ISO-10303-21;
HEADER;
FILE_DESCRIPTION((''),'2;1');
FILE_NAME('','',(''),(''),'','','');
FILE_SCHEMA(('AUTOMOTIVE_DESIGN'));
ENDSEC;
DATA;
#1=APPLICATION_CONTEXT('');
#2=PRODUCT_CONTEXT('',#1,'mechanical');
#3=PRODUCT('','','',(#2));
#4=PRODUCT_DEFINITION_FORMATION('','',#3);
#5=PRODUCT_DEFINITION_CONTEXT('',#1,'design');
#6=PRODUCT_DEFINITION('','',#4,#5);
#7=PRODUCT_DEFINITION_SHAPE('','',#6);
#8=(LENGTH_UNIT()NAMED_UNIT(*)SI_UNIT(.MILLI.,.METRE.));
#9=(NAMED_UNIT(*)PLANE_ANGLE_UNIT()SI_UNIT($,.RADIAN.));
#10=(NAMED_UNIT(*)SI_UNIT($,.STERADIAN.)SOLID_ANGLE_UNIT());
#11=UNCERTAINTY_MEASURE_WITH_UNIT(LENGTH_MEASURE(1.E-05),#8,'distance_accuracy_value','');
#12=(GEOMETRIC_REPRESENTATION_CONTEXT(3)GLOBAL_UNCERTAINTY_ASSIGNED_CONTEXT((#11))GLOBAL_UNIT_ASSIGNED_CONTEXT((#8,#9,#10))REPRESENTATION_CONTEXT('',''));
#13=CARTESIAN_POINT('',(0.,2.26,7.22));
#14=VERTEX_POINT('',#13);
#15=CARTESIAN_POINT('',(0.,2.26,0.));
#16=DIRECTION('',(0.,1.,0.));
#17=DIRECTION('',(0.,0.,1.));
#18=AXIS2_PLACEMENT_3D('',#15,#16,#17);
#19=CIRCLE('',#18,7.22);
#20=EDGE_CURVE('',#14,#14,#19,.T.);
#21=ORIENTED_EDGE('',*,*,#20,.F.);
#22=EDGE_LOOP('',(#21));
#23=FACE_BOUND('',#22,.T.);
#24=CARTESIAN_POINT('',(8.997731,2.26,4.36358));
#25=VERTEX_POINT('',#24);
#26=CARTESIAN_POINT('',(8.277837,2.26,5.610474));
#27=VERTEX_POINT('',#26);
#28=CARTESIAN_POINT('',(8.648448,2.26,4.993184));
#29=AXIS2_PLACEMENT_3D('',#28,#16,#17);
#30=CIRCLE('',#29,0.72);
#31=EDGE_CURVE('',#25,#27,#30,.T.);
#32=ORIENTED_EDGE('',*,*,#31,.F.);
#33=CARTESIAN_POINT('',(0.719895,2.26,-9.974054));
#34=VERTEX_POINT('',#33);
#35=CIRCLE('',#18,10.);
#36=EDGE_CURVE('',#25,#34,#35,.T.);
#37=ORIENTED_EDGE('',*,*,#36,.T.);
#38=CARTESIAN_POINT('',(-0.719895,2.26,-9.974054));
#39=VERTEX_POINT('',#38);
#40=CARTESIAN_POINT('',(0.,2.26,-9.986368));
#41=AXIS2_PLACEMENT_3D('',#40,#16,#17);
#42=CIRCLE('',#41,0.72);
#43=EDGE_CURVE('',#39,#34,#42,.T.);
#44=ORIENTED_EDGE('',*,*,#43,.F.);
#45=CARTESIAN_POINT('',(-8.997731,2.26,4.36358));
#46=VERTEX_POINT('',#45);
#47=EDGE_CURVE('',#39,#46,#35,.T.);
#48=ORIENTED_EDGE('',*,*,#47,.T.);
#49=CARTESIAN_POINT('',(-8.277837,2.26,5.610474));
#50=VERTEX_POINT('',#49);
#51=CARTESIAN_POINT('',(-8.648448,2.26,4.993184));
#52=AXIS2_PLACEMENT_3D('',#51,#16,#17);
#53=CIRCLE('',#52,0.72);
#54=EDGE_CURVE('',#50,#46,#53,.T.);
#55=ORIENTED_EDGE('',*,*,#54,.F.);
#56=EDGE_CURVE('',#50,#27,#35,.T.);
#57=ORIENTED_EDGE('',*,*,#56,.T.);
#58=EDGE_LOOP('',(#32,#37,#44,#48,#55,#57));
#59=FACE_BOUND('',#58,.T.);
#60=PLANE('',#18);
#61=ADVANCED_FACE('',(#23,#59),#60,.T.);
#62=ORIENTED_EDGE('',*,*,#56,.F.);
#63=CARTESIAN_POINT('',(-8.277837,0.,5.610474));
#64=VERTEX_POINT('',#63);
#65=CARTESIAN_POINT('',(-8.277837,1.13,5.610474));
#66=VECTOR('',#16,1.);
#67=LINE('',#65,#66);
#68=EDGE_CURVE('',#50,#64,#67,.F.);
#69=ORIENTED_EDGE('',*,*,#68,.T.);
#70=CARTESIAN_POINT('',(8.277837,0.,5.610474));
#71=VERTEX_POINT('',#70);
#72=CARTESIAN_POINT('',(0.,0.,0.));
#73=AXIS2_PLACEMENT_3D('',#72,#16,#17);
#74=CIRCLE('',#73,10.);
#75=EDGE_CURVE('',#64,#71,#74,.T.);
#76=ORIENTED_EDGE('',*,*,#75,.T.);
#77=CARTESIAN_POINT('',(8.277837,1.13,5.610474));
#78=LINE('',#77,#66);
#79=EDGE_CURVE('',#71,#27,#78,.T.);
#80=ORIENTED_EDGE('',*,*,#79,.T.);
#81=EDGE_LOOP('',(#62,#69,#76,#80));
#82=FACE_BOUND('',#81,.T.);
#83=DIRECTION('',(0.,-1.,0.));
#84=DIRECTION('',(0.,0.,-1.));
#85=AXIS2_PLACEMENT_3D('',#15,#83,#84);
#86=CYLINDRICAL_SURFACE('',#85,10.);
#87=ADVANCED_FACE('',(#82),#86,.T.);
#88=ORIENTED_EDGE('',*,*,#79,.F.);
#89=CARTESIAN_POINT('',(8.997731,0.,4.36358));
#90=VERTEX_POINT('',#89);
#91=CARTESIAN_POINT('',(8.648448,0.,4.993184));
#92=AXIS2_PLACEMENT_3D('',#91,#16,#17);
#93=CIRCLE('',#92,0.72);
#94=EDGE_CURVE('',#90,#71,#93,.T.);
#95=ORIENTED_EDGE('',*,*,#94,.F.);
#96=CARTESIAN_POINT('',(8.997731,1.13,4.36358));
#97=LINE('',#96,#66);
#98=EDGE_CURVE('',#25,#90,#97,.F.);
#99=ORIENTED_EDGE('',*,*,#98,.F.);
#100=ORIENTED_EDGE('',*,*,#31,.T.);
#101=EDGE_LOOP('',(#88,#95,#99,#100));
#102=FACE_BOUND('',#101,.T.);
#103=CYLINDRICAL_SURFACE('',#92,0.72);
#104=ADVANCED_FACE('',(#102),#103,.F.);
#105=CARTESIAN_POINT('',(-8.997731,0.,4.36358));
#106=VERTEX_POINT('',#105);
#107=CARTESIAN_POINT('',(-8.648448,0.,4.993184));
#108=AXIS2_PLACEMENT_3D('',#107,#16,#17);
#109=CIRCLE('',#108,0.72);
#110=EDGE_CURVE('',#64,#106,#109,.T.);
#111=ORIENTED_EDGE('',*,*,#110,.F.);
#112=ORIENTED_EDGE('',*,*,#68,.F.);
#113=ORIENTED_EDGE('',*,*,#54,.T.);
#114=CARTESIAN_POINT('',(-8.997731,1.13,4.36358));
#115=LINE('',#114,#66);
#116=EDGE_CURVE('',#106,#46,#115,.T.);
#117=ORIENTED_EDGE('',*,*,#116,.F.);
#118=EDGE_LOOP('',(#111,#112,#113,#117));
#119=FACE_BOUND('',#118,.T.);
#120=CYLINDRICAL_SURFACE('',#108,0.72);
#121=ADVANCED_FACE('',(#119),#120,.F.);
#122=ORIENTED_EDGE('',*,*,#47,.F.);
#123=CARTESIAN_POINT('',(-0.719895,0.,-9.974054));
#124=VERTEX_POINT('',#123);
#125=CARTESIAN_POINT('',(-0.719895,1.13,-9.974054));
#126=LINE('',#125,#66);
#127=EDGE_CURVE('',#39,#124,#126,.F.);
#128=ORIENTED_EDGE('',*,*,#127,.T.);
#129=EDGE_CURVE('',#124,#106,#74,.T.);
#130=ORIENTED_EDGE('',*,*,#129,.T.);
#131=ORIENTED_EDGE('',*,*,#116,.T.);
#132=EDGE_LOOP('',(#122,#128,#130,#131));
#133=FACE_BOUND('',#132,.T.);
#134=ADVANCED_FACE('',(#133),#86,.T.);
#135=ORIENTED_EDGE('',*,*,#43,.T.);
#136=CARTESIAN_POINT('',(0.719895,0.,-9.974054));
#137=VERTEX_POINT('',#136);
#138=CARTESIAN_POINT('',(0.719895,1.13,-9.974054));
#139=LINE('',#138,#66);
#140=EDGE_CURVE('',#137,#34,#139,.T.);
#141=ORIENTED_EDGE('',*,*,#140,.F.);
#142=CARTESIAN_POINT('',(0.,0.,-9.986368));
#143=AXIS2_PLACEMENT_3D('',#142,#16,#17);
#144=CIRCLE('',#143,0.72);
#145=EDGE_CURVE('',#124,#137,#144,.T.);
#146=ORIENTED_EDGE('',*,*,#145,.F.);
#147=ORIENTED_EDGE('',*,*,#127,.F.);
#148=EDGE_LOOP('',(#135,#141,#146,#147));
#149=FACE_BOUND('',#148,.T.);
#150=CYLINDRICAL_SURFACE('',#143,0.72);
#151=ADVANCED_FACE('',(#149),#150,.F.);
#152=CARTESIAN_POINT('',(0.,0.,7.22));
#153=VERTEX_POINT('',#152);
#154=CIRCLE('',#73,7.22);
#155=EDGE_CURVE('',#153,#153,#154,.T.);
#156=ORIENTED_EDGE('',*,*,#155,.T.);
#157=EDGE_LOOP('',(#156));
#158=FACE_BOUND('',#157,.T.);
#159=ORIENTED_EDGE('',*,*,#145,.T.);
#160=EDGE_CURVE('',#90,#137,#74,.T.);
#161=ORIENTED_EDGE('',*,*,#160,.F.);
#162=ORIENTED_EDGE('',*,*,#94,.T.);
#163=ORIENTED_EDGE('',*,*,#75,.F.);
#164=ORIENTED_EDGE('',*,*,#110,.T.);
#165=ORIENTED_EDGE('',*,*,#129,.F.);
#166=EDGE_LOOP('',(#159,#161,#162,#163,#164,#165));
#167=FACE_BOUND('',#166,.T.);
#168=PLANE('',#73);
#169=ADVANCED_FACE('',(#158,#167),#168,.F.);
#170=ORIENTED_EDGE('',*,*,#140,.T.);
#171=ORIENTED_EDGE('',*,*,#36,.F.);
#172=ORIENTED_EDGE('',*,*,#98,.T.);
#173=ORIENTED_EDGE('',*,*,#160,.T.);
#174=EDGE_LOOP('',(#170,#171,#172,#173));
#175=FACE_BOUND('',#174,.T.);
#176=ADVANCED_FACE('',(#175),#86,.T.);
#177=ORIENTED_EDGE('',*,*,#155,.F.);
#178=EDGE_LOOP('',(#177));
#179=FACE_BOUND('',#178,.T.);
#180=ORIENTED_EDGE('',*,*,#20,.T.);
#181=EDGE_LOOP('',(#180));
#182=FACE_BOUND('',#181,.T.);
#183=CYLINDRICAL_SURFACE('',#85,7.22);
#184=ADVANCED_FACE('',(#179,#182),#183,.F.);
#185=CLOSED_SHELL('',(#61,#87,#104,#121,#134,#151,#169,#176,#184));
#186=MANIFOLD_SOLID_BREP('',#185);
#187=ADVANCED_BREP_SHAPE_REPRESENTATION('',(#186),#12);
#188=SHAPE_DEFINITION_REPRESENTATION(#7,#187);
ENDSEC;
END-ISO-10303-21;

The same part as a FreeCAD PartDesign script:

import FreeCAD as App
import Part
import Sketcher
from FreeCAD import Vector
Q = App.Units.Quantity

doc = App.newDocument("Part")
body = doc.addObject("PartDesign::Body", "Body")

# Sketch on XZ plane
sketch1 = body.newObject("Sketcher::SketchObject", "Sketch")
sketch1.AttachmentSupport = (doc.getObject("XZ_Plane"), [""])
sketch1.MapMode = "FlatFace"
sketch1.addGeometry(Part.Circle(Vector(0, 0, 0), Vector(0, 0, 1), 10), False)
sketch1.addGeometry(Part.Circle(Vector(0, 0, 0), Vector(0, 0, 1), 7), False)
sketch1.addConstraint(Sketcher.Constraint("Coincident", 0, 3, -1, 1))
sketch1.addConstraint(Sketcher.Constraint("Coincident", 1, 3, -1, 1))
sketch1.addConstraint(Sketcher.Constraint("Diameter", 0, Q("20 mm")))
sketch1.addConstraint(Sketcher.Constraint("Diameter", 1, Q("14.44 mm")))
pad1 = body.newObject("PartDesign::Pad", "Pad")
pad1.Profile = sketch1
pad1.Length = 2.26
pad1.Reversed = True

# Sketch on XZ plane
sketch2 = body.newObject("Sketcher::SketchObject", "Sketch001")
sketch2.AttachmentSupport = (doc.getObject("XZ_Plane"), [""])
sketch2.MapMode = "FlatFace"
sketch2.AttachmentOffset = App.Placement(Vector(0, 0, -2.26), App.Rotation())
sketch2.addGeometry(Part.Circle(Vector(8.6, 5, 0), Vector(0, 0, 1), 0.7), False)
sketch2.addGeometry(Part.Circle(Vector(0, -10, 0), Vector(0, 0, 1), 0.7), False)
sketch2.addGeometry(Part.Circle(Vector(-8.6, 5, 0), Vector(0, 0, 1), 0.7), False)
sketch2.addConstraint(Sketcher.Constraint("Equal", 0, 1))
sketch2.addConstraint(Sketcher.Constraint("Equal", 1, 2))
sketch2.addConstraint(Sketcher.Constraint("Symmetric", 0, 3, 2, 3, -2))
sketch2.addConstraint(Sketcher.Constraint("PointOnObject", 1, 3, -2))
sketch2.addConstraint(Sketcher.Constraint("Diameter", 0, Q("1.44 mm")))
sketch2.addConstraint(Sketcher.Constraint("DistanceY", 1, 3, 0, 3, Q("14.979551 mm")))
sketch2.addConstraint(Sketcher.Constraint("DistanceX", -1, 1, 0, 3, Q("8.648448 mm")))
sketch2.addConstraint(Sketcher.Constraint("DistanceY", -1, 1, 0, 3, Q("4.993184 mm")))
pocket1 = body.newObject("PartDesign::Pocket", "Pocket")
pocket1.Profile = sketch2
pocket1.Type = "ThroughAll"
pocket1.Reversed = True

doc.recompute()
